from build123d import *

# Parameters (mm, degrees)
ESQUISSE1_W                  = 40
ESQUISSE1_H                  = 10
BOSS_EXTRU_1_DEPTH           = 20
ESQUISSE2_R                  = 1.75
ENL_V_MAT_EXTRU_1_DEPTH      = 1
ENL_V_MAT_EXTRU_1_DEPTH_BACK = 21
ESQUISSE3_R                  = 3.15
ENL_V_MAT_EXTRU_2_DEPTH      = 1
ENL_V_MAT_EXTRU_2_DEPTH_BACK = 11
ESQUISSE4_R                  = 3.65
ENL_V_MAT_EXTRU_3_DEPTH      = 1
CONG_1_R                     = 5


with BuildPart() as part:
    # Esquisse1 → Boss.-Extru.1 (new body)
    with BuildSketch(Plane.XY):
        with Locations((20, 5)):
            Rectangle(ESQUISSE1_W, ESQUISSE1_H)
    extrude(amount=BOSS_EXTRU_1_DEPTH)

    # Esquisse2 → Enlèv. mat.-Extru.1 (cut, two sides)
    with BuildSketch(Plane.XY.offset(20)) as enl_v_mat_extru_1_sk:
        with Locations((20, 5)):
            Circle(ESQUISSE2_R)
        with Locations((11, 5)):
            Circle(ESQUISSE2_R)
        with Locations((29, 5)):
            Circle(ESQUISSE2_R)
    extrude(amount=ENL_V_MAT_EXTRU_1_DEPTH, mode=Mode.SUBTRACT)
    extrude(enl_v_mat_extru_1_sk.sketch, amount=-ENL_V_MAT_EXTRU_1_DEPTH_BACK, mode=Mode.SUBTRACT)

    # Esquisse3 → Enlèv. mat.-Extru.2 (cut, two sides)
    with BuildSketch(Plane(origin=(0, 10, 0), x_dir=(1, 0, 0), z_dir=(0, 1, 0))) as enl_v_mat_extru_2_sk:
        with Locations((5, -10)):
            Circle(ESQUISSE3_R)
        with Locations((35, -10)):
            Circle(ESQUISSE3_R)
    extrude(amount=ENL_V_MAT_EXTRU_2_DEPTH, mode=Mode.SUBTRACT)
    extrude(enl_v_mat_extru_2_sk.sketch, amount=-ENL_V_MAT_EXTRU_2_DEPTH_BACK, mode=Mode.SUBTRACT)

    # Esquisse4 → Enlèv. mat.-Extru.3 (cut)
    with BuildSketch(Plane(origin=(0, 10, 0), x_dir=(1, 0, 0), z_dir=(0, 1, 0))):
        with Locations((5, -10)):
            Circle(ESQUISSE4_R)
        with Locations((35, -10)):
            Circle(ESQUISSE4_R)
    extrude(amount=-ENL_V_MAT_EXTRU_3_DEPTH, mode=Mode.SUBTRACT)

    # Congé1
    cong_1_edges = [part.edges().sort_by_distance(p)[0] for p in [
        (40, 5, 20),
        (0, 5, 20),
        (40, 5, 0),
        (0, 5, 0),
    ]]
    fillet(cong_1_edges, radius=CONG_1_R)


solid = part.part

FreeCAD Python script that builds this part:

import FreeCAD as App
import Part
import Sketcher


def edges_at(feature, points):
    """Names of the edges that pass closest to the given points."""
    edges = feature.Shape.Edges
    near = lambda p: min(range(len(edges)), key=lambda i: edges[i].distToShape(Part.Vertex(*p))[0])
    return sorted({f"Edge{near(p) + 1}" for p in points})

doc = App.newDocument("Part")
body = doc.addObject("PartDesign::Body", "Body")

sketch1 = doc.addObject("Sketcher::SketchObject", "Sketch")
body.addObject(sketch1)
sketch1.AttachmentSupport = (doc.XY_Plane, [""])
sketch1.MapMode = "FlatFace"
sketch1.addGeometry([
    Part.LineSegment(App.Vector(0, 10, 0), App.Vector(0, 0, 0)),
    Part.LineSegment(App.Vector(0, 0, 0), App.Vector(40, 0, 0)),
    Part.LineSegment(App.Vector(40, 0, 0), App.Vector(40, 10, 0)),
    Part.LineSegment(App.Vector(40, 10, 0), App.Vector(0, 10, 0)),
], False)
sketch1.addConstraint([
    Sketcher.Constraint("Coincident", 0, 2, 1, 1),
    Sketcher.Constraint("Coincident", 1, 2, 2, 1),
    Sketcher.Constraint("Coincident", 2, 2, 3, 1),
    Sketcher.Constraint("Coincident", 3, 2, 0, 1),
    Sketcher.Constraint("Vertical", 0),
    Sketcher.Constraint("Horizontal", 1),
    Sketcher.Constraint("Vertical", 2),
    Sketcher.Constraint("Horizontal", 3),
    Sketcher.Constraint("Coincident", 0, 2, -1, 1),
    Sketcher.Constraint("DistanceX", 1, 1, 1, 2, 40.0),
    Sketcher.Constraint("DistanceY", 0, 2, 0, 1, 10.0),
])
pad1 = doc.addObject("PartDesign::Pad", "Pad")
body.addObject(pad1)
pad1.Profile = sketch1
pad1.Length = 20

sketch2 = doc.addObject("Sketcher::SketchObject", "Sketch001")
body.addObject(sketch2)
sketch2.AttachmentSupport = (doc.XY_Plane, [""])
sketch2.MapMode = "FlatFace"
sketch2.AttachmentOffset = App.Placement(App.Vector(0, 0, 20), App.Rotation())
sketch2.addGeometry([
    Part.Circle(App.Vector(20, 5, 0), App.Vector(0, 0, 1), 1.8),
    Part.Circle(App.Vector(11, 5, 0), App.Vector(0, 0, 1), 1.8),
    Part.Circle(App.Vector(29, 5, 0), App.Vector(0, 0, 1), 1.8),
], False)
sketch2.addConstraint([
    Sketcher.Constraint("Equal", 0, 1),
    Sketcher.Constraint("Equal", 1, 2),
    Sketcher.Constraint("Horizontal", 0, 3, 1, 3),
    Sketcher.Constraint("Horizontal", 1, 3, 2, 3),
    Sketcher.Constraint("Diameter", 0, 3.5),
    Sketcher.Constraint("DistanceX", -1, 1, 0, 3, 20.0),
    Sketcher.Constraint("DistanceY", -1, 1, 0, 3, 5.0),
    Sketcher.Constraint("DistanceX", -1, 1, 1, 3, 11.0),
    Sketcher.Constraint("DistanceX", -1, 1, 2, 3, 29.0),
])
pocket1 = doc.addObject("PartDesign::Pocket", "Pocket")
body.addObject(pocket1)
pocket1.Profile = sketch2
pocket1.Type = "ThroughAll"
pocket1.Midplane = True

sketch3 = doc.addObject("Sketcher::SketchObject", "Sketch002")
body.addObject(sketch3)
sketch3.AttachmentSupport = (doc.XZ_Plane, [""])
sketch3.MapMode = "FlatFace"
sketch3.AttachmentOffset = App.Placement(App.Vector(0, 0, -10), App.Rotation())
sketch3.addGeometry([
    Part.Circle(App.Vector(5, 10, 0), App.Vector(0, 0, 1), 3.1),
    Part.Circle(App.Vector(35, 10, 0), App.Vector(0, 0, 1), 3.1),
], False)
sketch3.addConstraint([
    Sketcher.Constraint("Equal", 0, 1),
    Sketcher.Constraint("Horizontal", 0, 3, 1, 3),
    Sketcher.Constraint("Diameter", 0, 6.3),
    Sketcher.Constraint("DistanceX", -1, 1, 0, 3, 5.0),
    Sketcher.Constraint("DistanceY", -1, 1, 0, 3, 10.0),
    Sketcher.Constraint("DistanceX", -1, 1, 1, 3, 35.0),
])
pocket2 = doc.addObject("PartDesign::Pocket", "Pocket001")
body.addObject(pocket2)
pocket2.Profile = sketch3
pocket2.Type = "ThroughAll"
pocket2.Midplane = True

sketch4 = doc.addObject("Sketcher::SketchObject", "Sketch003")
body.addObject(sketch4)
sketch4.AttachmentSupport = (doc.XZ_Plane, [""])
sketch4.MapMode = "FlatFace"
sketch4.AttachmentOffset = App.Placement(App.Vector(0, 0, -10), App.Rotation())
sketch4.addGeometry([
    Part.Circle(App.Vector(5, 10, 0), App.Vector(0, 0, 1), 3.6),
    Part.Circle(App.Vector(35, 10, 0), App.Vector(0, 0, 1), 3.6),
], False)
sketch4.addConstraint([
    Sketcher.Constraint("Equal", 0, 1),
    Sketcher.Constraint("Horizontal", 0, 3, 1, 3),
    Sketcher.Constraint("Diameter", 0, 7.3),
    Sketcher.Constraint("DistanceX", -1, 1, 0, 3, 5.0),
    Sketcher.Constraint("DistanceY", -1, 1, 0, 3, 10.0),
    Sketcher.Constraint("DistanceX", -1, 1, 1, 3, 35.0),
])
pocket3 = doc.addObject("PartDesign::Pocket", "Pocket002")
body.addObject(pocket3)
pocket3.Profile = sketch4
pocket3.Length = 1
pocket3.Reversed = True
doc.recompute()

fillet = doc.addObject("PartDesign::Fillet", "Fillet")
body.addObject(fillet)
fillet.Base = (pocket3, edges_at(pocket3, [
    (40, 5, 20),
    (0, 5, 20),
    (40, 5, 0),
    (0, 5, 0),
]))
fillet.Radius = 5

doc.recompute()
